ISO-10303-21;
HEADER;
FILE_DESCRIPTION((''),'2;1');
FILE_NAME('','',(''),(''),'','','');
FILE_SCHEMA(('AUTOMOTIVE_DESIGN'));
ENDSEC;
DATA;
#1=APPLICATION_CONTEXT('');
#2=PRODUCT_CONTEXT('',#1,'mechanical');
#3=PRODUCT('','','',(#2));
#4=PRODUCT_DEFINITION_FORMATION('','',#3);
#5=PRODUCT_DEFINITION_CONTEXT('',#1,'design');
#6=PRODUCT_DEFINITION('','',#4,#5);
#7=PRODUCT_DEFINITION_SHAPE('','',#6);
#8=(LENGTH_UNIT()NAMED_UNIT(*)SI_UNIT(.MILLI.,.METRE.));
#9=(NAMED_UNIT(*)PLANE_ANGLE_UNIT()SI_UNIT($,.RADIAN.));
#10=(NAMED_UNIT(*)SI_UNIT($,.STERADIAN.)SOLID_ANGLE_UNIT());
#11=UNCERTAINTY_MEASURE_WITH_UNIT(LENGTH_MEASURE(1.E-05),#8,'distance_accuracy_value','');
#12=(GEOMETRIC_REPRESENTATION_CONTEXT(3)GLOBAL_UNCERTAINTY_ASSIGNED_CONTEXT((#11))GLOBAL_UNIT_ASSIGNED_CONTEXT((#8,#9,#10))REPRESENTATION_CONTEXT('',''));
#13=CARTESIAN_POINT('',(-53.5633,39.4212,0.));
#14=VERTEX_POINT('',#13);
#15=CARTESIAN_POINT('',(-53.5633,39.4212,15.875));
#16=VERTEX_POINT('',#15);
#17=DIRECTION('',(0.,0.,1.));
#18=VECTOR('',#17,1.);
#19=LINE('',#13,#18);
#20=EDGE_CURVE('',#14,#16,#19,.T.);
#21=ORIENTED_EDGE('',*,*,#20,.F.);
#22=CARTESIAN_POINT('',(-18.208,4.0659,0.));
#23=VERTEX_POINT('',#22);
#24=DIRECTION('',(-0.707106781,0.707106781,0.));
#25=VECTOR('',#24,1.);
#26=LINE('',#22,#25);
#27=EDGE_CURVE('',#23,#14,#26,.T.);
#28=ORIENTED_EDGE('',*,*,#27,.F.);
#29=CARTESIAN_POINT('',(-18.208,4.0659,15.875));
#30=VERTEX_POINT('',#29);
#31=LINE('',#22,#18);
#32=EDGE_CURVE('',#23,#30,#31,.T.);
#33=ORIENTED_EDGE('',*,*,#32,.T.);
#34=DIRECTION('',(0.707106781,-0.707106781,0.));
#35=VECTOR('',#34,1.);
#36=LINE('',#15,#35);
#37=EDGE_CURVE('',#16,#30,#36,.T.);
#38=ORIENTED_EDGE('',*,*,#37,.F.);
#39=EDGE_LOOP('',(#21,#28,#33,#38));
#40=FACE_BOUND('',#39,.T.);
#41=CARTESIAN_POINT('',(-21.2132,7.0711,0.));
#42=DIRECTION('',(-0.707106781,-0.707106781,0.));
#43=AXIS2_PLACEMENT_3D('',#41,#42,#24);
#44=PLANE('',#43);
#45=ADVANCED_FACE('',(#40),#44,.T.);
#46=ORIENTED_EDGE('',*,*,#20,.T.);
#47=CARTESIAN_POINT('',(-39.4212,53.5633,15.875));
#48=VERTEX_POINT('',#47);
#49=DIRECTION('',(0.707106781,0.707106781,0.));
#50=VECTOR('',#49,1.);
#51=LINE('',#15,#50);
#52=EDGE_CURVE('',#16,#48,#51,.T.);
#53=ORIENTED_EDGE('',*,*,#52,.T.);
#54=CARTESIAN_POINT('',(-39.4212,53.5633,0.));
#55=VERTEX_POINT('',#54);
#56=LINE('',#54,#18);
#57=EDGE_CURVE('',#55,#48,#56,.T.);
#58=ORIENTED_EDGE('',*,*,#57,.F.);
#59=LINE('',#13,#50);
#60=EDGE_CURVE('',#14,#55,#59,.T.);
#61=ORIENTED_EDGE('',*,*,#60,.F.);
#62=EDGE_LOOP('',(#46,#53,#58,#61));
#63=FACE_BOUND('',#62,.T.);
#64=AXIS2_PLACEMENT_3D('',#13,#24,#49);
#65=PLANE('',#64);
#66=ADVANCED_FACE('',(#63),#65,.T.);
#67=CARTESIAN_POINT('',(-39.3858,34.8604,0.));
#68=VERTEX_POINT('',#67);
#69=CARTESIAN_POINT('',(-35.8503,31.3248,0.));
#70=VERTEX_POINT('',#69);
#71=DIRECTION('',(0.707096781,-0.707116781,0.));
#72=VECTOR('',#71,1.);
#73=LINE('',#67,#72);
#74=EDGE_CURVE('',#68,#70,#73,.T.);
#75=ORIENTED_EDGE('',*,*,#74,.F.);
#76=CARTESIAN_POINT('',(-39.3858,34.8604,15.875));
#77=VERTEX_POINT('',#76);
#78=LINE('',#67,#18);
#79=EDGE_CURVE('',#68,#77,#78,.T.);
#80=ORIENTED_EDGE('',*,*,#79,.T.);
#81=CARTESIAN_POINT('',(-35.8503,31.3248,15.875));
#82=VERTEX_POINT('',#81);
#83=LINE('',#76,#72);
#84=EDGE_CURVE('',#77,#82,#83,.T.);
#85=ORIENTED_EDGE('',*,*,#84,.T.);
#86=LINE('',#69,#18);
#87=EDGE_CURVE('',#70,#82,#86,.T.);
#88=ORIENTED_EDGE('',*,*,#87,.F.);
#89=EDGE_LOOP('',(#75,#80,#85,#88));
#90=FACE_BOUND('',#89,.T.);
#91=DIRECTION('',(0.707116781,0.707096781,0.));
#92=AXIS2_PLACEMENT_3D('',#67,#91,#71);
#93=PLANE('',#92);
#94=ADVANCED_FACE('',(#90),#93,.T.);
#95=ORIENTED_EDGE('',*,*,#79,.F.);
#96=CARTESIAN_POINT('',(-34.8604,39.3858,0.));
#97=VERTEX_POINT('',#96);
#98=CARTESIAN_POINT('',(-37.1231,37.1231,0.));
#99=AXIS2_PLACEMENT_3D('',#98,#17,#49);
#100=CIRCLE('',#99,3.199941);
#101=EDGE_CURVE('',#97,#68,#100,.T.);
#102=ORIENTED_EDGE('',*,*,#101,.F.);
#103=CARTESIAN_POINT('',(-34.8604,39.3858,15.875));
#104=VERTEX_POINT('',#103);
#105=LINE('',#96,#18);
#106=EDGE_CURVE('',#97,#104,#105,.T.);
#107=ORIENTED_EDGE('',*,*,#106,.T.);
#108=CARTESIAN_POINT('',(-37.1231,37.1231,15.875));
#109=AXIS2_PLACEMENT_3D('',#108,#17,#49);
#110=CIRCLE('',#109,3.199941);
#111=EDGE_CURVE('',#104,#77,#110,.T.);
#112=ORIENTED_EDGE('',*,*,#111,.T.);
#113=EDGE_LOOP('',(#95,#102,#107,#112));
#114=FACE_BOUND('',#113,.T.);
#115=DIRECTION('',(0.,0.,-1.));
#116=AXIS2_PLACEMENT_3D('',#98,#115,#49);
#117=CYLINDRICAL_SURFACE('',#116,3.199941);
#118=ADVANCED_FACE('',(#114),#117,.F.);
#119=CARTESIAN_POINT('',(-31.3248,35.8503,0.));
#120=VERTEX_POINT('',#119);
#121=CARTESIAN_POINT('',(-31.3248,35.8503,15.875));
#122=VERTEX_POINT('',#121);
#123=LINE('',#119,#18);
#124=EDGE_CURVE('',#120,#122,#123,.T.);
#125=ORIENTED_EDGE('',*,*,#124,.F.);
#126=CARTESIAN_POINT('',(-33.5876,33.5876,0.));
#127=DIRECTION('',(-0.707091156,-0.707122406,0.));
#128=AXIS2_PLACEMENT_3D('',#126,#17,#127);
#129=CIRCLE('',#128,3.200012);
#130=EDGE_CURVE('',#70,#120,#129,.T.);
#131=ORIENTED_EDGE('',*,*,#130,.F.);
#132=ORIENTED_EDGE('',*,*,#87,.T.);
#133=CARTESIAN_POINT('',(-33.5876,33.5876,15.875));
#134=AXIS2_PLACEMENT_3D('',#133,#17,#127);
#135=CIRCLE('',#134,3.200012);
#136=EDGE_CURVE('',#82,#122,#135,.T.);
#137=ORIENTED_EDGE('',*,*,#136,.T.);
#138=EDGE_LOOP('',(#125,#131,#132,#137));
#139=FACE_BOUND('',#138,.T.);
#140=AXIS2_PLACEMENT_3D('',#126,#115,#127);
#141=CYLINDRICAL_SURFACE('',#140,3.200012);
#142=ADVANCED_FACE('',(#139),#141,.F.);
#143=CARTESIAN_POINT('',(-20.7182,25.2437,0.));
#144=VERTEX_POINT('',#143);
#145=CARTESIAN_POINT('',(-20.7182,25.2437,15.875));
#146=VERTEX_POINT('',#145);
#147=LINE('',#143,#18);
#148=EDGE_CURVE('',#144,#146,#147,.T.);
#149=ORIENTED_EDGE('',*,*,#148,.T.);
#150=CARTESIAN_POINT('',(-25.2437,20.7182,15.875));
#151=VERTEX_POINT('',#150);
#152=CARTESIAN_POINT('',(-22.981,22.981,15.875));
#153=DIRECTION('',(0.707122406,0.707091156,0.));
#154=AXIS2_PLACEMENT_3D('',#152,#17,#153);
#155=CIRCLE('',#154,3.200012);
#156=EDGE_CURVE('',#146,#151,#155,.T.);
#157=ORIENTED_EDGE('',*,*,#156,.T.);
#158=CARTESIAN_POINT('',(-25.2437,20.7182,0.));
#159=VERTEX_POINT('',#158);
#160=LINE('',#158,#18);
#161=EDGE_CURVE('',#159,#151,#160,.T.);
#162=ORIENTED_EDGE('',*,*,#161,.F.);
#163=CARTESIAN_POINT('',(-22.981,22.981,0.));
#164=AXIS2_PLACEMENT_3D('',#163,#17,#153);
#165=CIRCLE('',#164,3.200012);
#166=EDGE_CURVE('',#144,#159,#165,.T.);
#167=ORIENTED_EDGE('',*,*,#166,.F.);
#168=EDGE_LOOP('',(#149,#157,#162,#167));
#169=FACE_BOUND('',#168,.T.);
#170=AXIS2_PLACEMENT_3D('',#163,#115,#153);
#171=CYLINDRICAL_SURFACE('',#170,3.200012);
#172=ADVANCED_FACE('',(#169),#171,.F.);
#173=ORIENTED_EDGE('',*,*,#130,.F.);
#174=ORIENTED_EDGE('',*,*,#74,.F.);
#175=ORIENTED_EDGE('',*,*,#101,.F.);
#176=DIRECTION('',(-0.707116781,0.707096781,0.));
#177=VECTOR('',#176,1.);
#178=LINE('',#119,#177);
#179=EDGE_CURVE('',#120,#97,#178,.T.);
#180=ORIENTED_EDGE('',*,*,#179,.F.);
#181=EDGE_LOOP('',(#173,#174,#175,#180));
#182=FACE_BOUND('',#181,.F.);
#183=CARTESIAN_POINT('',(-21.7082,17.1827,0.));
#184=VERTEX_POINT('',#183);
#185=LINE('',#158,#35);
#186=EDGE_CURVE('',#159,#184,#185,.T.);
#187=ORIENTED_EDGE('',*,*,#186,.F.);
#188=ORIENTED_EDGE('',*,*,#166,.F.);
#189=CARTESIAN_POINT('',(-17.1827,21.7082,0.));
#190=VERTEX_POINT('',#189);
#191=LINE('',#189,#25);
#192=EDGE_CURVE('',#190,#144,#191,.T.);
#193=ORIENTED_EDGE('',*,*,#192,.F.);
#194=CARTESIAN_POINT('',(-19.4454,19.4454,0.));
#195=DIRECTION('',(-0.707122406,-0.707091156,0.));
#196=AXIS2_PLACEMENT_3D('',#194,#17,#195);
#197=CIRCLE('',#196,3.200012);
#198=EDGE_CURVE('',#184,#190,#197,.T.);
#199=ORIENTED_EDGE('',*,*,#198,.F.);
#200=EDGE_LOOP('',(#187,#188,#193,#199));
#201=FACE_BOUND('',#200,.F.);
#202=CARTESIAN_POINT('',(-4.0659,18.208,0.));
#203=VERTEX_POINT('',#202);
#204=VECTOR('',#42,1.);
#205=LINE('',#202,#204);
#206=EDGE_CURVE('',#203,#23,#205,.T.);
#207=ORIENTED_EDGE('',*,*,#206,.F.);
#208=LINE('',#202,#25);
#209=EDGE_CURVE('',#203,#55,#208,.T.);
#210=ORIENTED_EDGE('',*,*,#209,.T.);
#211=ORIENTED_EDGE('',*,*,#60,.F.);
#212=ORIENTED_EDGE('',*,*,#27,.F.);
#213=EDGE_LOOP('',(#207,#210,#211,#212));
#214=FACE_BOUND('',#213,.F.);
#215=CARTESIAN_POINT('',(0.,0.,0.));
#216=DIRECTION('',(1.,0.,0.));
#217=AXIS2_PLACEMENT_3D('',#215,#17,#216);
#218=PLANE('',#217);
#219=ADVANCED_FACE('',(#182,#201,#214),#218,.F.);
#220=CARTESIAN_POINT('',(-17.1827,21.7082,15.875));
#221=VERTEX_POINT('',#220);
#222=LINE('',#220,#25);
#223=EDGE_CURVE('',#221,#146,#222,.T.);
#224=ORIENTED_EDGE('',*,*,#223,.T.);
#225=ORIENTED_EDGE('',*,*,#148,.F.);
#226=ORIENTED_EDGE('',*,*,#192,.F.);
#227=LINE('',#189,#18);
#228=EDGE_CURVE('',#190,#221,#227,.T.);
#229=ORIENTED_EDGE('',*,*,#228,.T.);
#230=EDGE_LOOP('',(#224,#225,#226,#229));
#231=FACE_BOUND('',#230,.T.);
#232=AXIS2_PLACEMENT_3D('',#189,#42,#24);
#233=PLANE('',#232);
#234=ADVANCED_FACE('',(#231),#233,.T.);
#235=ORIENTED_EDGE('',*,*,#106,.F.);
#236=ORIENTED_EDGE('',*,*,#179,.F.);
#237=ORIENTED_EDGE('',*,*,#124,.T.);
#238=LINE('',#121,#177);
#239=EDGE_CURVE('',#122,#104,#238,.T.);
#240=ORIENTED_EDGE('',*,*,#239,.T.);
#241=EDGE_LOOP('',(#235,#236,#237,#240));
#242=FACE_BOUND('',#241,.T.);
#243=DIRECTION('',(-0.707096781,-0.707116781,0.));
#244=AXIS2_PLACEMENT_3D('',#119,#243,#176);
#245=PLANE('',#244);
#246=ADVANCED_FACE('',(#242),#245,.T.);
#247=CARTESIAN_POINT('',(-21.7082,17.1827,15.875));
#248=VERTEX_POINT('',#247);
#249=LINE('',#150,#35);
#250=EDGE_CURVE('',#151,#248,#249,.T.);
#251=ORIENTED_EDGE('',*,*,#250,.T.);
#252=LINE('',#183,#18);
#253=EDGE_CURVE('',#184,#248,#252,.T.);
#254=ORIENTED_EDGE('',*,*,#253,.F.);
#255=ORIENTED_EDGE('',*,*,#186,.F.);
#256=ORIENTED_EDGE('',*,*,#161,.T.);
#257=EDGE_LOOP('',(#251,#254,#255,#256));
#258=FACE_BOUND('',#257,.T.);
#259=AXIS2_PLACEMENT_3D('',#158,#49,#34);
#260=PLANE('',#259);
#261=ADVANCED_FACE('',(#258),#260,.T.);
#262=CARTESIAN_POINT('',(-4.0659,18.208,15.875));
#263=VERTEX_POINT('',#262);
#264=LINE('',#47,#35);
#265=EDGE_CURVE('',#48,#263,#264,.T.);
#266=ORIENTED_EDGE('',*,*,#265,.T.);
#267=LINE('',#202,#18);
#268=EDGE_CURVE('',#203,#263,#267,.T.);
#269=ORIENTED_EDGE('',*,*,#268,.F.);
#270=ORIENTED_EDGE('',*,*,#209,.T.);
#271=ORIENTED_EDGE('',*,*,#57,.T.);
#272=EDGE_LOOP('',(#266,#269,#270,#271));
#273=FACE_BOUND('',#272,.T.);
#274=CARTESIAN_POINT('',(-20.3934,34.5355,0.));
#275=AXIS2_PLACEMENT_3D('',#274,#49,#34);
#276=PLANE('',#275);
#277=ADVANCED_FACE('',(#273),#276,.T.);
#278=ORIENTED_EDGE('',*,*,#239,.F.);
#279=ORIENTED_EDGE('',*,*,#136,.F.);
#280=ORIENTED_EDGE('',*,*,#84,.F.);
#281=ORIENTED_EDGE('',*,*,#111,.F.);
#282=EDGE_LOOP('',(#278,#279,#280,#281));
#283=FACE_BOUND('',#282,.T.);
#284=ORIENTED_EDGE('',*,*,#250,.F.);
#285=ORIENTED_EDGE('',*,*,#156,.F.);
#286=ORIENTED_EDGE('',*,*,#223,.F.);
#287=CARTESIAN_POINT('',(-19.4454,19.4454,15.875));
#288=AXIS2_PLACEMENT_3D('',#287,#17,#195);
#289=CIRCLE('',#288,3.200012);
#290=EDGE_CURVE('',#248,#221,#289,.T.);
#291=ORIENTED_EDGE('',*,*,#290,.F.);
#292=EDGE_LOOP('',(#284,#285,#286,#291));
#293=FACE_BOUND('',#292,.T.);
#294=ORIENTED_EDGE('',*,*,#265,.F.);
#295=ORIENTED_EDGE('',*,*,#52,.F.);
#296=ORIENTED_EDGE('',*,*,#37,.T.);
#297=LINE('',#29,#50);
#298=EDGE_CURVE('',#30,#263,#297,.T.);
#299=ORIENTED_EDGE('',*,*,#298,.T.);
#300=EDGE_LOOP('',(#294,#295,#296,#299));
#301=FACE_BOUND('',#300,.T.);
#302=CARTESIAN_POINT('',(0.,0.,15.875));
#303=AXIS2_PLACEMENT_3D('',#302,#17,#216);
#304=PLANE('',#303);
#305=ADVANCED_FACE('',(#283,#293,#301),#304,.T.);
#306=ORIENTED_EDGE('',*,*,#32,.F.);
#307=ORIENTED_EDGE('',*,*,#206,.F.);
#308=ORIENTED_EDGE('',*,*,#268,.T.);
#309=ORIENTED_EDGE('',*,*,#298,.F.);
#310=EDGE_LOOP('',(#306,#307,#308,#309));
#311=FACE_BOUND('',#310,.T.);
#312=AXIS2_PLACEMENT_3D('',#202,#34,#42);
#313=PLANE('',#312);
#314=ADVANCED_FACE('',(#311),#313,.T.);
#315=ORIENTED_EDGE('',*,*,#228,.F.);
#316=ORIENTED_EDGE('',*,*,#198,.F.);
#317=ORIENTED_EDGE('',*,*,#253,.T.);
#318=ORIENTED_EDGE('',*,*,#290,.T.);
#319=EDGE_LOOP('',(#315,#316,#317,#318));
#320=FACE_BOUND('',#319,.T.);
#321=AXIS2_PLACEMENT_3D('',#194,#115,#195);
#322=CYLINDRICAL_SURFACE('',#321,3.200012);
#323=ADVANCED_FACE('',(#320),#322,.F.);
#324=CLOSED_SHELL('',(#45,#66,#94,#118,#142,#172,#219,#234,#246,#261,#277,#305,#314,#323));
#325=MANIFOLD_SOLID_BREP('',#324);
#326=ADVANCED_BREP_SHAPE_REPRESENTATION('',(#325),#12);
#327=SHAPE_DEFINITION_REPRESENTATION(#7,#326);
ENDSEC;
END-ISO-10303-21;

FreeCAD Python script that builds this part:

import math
import FreeCAD as App
import Part
import Sketcher
from FreeCAD import Vector
Q = App.Units.Quantity


def add_polygon(sketch, points):
    """Adds a closed chain of lines whose ends are joined by coincident constraints."""
    first, n = sketch.GeometryCount, len(points)
    for a, b in zip(points, points[1:] + points[:1]):
        sketch.addGeometry(Part.LineSegment(App.Vector(*a, 0), App.Vector(*b, 0)), False)
    for i in range(n):
        sketch.addConstraint(Sketcher.Constraint("Coincident", first + i, 2, first + (i + 1) % n, 1))

doc = App.newDocument("Part")
body = doc.addObject("PartDesign::Body", "Body")

sketch1 = body.newObject("Sketcher::SketchObject", "Sketch")
sketch1.AttachmentSupport = (doc.getObject("XY_Plane"), [""])
sketch1.MapMode = "FlatFace"
add_polygon(sketch1, [(-39.4212, 53.5633), (-53.5633, 39.4212), (-18.208, 4.0659), (-4.0659, 18.208)])
sketch1.addGeometry(Part.LineSegment(Vector(-20.7182, 25.2437, 0), Vector(-17.1827, 21.7082, 0)), False)
sketch1.addGeometry(Part.ArcOfCircle(Part.Circle(Vector(-19.4454, 19.4454, 0), Vector(0, 0, 1), 3.200012), math.radians(-135.001266), math.radians(45.001266)), False)
sketch1.addGeometry(Part.LineSegment(Vector(-21.7082, 17.1827, 0), Vector(-25.2437, 20.7182, 0)), False)
sketch1.addGeometry(Part.ArcOfCircle(Part.Circle(Vector(-22.981, 22.981, 0), Vector(0, 0, 1), 3.200012), math.radians(44.998734), math.radians(225.001266)), False)
sketch1.addGeometry(Part.LineSegment(Vector(-34.8604, 39.3858, 0), Vector(-31.3248, 35.8503, 0)), False)
sketch1.addGeometry(Part.ArcOfCircle(Part.Circle(Vector(-33.5876, 33.5876, 0), Vector(0, 0, 1), 3.200012), math.radians(-134.998734), math.radians(44.998734)), False)
sketch1.addGeometry(Part.LineSegment(Vector(-35.8503, 31.3248, 0), Vector(-39.3858, 34.8604, 0)), False)
sketch1.addGeometry(Part.ArcOfCircle(Part.Circle(Vector(-37.1231, 37.1231, 0), Vector(0, 0, 1), 3.199941), math.radians(45), math.radians(225)), False)
sketch1.addConstraint([
    Sketcher.Constraint("Tangent", 4, 2, 5, 2),
    Sketcher.Constraint("Tangent", 5, 1, 6, 1),
    Sketcher.Constraint("Tangent", 6, 2, 7, 2),
    Sketcher.Constraint("Tangent", 7, 1, 4, 1),
    Sketcher.Constraint("Tangent", 8, 2, 9, 2),
    Sketcher.Constraint("Tangent", 9, 1, 10, 1),
    Sketcher.Constraint("Tangent", 10, 2, 11, 2),
    Sketcher.Constraint("Tangent", 11, 1, 8, 1),
    Sketcher.Constraint("Equal", 5, 7),
    Sketcher.Constraint("Equal", 7, 9),
    Sketcher.Constraint("Equal", 9, 11),
    Sketcher.Constraint("Perpendicular", 0, 1),
    Sketcher.Constraint("Perpendicular", 1, 2),
    Sketcher.Constraint("Perpendicular", 2, 3),
    Sketcher.Constraint("Parallel", 3, 4),
    Sketcher.Constraint("Parallel", 6, 8),
    Sketcher.Constraint("Equal", 6, 8),
    Sketcher.Constraint("Radius", 5, 3.2),
    Sketcher.Constraint("Angle", 0, Q("-135 deg")),
    Sketcher.Constraint("Distance", 0, 20.0),
    Sketcher.Constraint("Distance", 1, 50.0),
    Sketcher.Constraint("Distance", 4, 5.0),
    Sketcher.Constraint("DistanceX", 7, 3, -1, 1, 22.981),
    Sketcher.Constraint("DistanceY", -1, 1, 7, 3, 22.981),
    Sketcher.Constraint("DistanceX", 11, 3, -1, 1, 37.123),
    Sketcher.Constraint("DistanceY", -1, 1, 11, 3, 37.123),
    Sketcher.Constraint("DistanceX", 1, 2, -1, 1, 18.208),
    Sketcher.Constraint("DistanceY", -1, 1, 1, 2, 4.066),
])
pad1 = body.newObject("PartDesign::Pad", "Pad")
pad1.Profile = sketch1
pad1.Length = 15.875

doc.recompute()
